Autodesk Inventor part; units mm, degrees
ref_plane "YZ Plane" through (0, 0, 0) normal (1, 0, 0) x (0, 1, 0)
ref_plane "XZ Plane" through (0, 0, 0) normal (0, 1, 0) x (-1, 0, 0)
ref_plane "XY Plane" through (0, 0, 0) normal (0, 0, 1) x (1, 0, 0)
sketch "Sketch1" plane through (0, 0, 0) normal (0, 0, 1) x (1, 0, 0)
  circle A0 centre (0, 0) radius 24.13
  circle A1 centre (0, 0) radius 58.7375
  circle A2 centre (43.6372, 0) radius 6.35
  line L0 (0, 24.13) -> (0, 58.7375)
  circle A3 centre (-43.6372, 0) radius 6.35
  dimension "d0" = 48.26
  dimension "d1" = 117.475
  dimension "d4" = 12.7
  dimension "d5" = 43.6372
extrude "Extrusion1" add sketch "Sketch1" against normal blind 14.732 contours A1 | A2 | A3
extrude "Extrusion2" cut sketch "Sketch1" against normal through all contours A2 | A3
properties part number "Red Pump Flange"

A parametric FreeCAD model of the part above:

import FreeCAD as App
import Part
import Sketcher
Q = App.Units.Quantity

doc = App.newDocument("Part")
body = doc.addObject("PartDesign::Body", "Body")

# Sketch on XY plane
sketch1 = body.newObject("Sketcher::SketchObject", "Sketch")
sketch1.AttachmentSupport = (doc.getObject("XY_Plane"), [""])
sketch1.MapMode = "FlatFace"
sketch1.addGeometry([
    Part.Circle(App.Vector(0, 0, 0), App.Vector(0, 0, 1), 58.7375),
    Part.Circle(App.Vector(0, 0, 0), App.Vector(0, 0, 1), 24.13),
], False)
sketch1.addConstraint([
    Sketcher.Constraint("Coincident", 0, 3, -1, 1),
    Sketcher.Constraint("Coincident", 1, 3, -1, 1),
    Sketcher.Constraint("Diameter", 1, Q("1.9 in")),
    Sketcher.Constraint("Diameter", 0, Q("4.625 in")),
])
pad1 = body.newObject("PartDesign::Pad", "Pad")
pad1.Profile = sketch1
pad1.Length = Q("0.58 in")
pad1.Reversed = True

# Sketch on XY plane
sketch2 = body.newObject("Sketcher::SketchObject", "Sketch001")
sketch2.AttachmentSupport = (doc.getObject("XY_Plane"), [""])
sketch2.MapMode = "FlatFace"
sketch2.addGeometry([
    Part.Circle(App.Vector(43.6372, 0, 0), App.Vector(0, 0, 1), 6.35),
    Part.Circle(App.Vector(-43.6372, 0, 0), App.Vector(0, 0, 1), 6.35),
], False)
sketch2.addConstraint([
    Sketcher.Constraint("Equal", 0, 1),
    Sketcher.Constraint("Symmetric", 0, 3, 1, 3, -1, 1),
    Sketcher.Constraint("PointOnObject", 0, 3, -1),
    Sketcher.Constraint("Diameter", 0, Q("0.5 in")),
    Sketcher.Constraint("DistanceX", -1, 1, 0, 3, Q("1.718 in")),
])
pocket1 = body.newObject("PartDesign::Pocket", "Pocket")
pocket1.Profile = sketch2
pocket1.Type = "ThroughAll"

doc.recompute()
